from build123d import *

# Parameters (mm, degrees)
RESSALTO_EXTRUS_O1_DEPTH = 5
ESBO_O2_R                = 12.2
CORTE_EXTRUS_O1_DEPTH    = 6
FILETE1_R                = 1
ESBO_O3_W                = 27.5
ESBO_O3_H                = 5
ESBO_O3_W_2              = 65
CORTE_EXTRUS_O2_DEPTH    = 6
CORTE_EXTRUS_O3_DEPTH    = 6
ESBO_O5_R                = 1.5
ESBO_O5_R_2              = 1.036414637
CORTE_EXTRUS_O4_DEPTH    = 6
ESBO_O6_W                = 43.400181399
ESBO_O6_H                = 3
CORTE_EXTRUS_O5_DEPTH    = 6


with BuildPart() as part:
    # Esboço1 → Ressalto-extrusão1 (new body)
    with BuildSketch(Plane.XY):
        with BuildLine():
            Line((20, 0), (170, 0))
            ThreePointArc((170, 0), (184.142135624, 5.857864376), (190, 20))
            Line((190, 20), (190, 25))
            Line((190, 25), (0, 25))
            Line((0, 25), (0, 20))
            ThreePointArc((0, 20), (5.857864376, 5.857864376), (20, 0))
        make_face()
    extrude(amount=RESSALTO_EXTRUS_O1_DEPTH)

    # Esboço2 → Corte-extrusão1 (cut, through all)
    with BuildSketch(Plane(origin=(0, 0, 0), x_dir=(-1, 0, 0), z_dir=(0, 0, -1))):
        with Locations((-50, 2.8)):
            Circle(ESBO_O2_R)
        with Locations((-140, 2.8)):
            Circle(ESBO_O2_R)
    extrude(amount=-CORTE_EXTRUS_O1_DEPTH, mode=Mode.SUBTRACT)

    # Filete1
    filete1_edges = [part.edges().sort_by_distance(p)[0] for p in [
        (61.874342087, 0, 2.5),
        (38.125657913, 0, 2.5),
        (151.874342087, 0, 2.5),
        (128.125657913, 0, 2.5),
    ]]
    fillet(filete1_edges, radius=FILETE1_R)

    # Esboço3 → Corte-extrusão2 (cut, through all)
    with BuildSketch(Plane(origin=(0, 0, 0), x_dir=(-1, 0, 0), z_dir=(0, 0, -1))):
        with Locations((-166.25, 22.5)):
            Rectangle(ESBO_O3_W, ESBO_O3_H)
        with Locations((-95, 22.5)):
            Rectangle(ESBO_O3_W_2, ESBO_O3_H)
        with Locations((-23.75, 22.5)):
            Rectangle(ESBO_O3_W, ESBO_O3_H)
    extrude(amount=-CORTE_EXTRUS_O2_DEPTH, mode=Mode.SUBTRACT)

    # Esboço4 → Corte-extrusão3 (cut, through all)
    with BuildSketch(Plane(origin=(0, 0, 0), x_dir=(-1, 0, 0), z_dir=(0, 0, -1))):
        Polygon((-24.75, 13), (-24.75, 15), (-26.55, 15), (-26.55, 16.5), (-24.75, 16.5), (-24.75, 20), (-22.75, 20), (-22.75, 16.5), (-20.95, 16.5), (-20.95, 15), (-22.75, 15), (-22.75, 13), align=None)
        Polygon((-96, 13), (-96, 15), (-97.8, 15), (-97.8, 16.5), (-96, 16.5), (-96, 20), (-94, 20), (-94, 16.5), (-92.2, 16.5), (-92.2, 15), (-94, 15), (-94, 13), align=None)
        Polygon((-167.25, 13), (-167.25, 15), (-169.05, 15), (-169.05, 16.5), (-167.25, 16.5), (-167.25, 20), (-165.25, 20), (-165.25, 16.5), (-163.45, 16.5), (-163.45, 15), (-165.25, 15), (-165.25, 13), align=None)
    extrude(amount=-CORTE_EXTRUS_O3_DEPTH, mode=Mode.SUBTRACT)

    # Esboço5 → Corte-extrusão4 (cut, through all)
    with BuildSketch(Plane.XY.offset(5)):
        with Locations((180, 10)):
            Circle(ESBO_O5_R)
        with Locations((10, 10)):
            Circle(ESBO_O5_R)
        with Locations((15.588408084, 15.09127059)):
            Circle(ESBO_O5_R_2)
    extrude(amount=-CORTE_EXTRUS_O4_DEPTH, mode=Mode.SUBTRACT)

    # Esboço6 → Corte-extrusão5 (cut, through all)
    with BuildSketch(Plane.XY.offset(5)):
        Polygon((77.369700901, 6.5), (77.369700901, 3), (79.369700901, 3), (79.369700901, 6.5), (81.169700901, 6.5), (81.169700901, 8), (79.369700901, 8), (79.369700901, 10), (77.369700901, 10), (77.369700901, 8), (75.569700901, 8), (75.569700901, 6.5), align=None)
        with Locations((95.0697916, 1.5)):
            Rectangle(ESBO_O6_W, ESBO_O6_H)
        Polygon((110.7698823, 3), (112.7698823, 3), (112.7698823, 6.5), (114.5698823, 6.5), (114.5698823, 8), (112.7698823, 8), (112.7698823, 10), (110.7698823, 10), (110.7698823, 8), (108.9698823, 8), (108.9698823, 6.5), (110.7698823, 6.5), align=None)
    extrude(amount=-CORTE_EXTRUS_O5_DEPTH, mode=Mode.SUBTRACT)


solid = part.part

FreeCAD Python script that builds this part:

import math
import FreeCAD as App
import Part
import Sketcher


def edges_at(feature, points):
    """Names of the edges that pass closest to the given points."""
    edges = feature.Shape.Edges
    near = lambda p: min(range(len(edges)), key=lambda i: edges[i].distToShape(Part.Vertex(*p))[0])
    return sorted({f"Edge{near(p) + 1}" for p in points})


def add_polygon(sketch, points):
    """Adds a closed chain of lines whose ends are joined by coincident constraints."""
    first, n = sketch.GeometryCount, len(points)
    for a, b in zip(points, points[1:] + points[:1]):
        sketch.addGeometry(Part.LineSegment(App.Vector(*a, 0), App.Vector(*b, 0)), False)
    for i in range(n):
        sketch.addConstraint(Sketcher.Constraint("Coincident", first + i, 2, first + (i + 1) % n, 1))

doc = App.newDocument("Part")
body = doc.addObject("PartDesign::Body", "Body")

# Sketch on XY plane
sketch1 = doc.addObject("Sketcher::SketchObject", "Sketch")
body.addObject(sketch1)
sketch1.AttachmentSupport = (doc.XY_Plane, [""])
sketch1.MapMode = "FlatFace"
sketch1.addGeometry(Part.LineSegment(App.Vector(20, 0, 0), App.Vector(170, 0, 0)), False)
sketch1.addGeometry(Part.ArcOfCircle(Part.Circle(App.Vector(170, 20, 0), App.Vector(0, 0, 1), 20), math.radians(-90), math.radians(0)), False)
sketch1.addGeometry(Part.LineSegment(App.Vector(190, 20, 0), App.Vector(190, 25, 0)), False)
sketch1.addGeometry(Part.LineSegment(App.Vector(190, 25, 0), App.Vector(0, 25, 0)), False)
sketch1.addGeometry(Part.LineSegment(App.Vector(0, 25, 0), App.Vector(0, 20, 0)), False)
sketch1.addGeometry(Part.ArcOfCircle(Part.Circle(App.Vector(20, 20, 0), App.Vector(0, 0, 1), 20), math.radians(180), math.radians(270)), False)
sketch1.addConstraint(Sketcher.Constraint("Tangent", 0, 2, 1, 1))
sketch1.addConstraint(Sketcher.Constraint("Tangent", 1, 2, 2, 1))
sketch1.addConstraint(Sketcher.Constraint("Coincident", 2, 2, 3, 1))
sketch1.addConstraint(Sketcher.Constraint("Coincident", 3, 2, 4, 1))
sketch1.addConstraint(Sketcher.Constraint("Tangent", 4, 2, 5, 1))
sketch1.addConstraint(Sketcher.Constraint("Tangent", 5, 2, 0, 1))
sketch1.addConstraint(Sketcher.Constraint("Horizontal", 0))
sketch1.addConstraint(Sketcher.Constraint("Vertical", 2))
sketch1.addConstraint(Sketcher.Constraint("Horizontal", 3))
sketch1.addConstraint(Sketcher.Constraint("Vertical", 4))
sketch1.addConstraint(Sketcher.Constraint("Equal", 1, 5))
sketch1.addConstraint(Sketcher.Constraint("PointOnObject", 0, 2, -1))
sketch1.addConstraint(Sketcher.Constraint("PointOnObject", 3, 2, -2))
sketch1.addConstraint(Sketcher.Constraint("Radius", 1, 20.0))
sketch1.addConstraint(Sketcher.Constraint("DistanceX", 0, 1, 0, 2, 150.0))
sketch1.addConstraint(Sketcher.Constraint("DistanceY", 2, 1, 2, 2, 5.0))
pad1 = doc.addObject("PartDesign::Pad", "Pad")
body.addObject(pad1)
pad1.Profile = sketch1
pad1.Length = 5

# Sketch on XY plane
sketch2 = doc.addObject("Sketcher::SketchObject", "Sketch001")
body.addObject(sketch2)
sketch2.AttachmentSupport = (doc.XY_Plane, [""])
sketch2.MapMode = "FlatFace"
sketch2.addGeometry(Part.Circle(App.Vector(50, 2.8, 0), App.Vector(0, 0, 1), 12.2), False)
sketch2.addGeometry(Part.Circle(App.Vector(140, 2.8, 0), App.Vector(0, 0, 1), 12.2), False)
sketch2.addConstraint(Sketcher.Constraint("Equal", 0, 1))
sketch2.addConstraint(Sketcher.Constraint("Horizontal", 0, 3, 1, 3))
sketch2.addConstraint(Sketcher.Constraint("Diameter", 0, 24.4))
sketch2.addConstraint(Sketcher.Constraint("DistanceX", -1, 1, 0, 3, 50.0))
sketch2.addConstraint(Sketcher.Constraint("DistanceX", -1, 1, 1, 3, 140.0))
sketch2.addConstraint(Sketcher.Constraint("DistanceY", -1, 1, 0, 3, 2.8))
pocket1 = doc.addObject("PartDesign::Pocket", "Pocket")
body.addObject(pocket1)
pocket1.Profile = sketch2
pocket1.Type = "ThroughAll"
pocket1.Reversed = True
doc.recompute()

fillet = doc.addObject("PartDesign::Fillet", "Fillet")
body.addObject(fillet)
fillet.Base = (pocket1, edges_at(pocket1, [
    (61.874, 0, 2.5),
    (38.126, 0, 2.5),
    (151.874, 0, 2.5),
    (128.126, 0, 2.5),
]))
fillet.Radius = 1

# Sketch on XY plane
sketch3 = doc.addObject("Sketcher::SketchObject", "Sketch002")
body.addObject(sketch3)
sketch3.AttachmentSupport = (doc.XY_Plane, [""])
sketch3.MapMode = "FlatFace"
add_polygon(sketch3, [(180, 25), (180, 20), (152.5, 20), (152.5, 25)])  # lines 0-3
add_polygon(sketch3, [(127.5, 25), (127.5, 20), (62.5, 20), (62.5, 25)])  # lines 4-7
add_polygon(sketch3, [(37.5, 25), (37.5, 20), (10, 20), (10, 25)])  # lines 8-11
sketch3.addConstraint(Sketcher.Constraint("Vertical", 0))
sketch3.addConstraint(Sketcher.Constraint("Horizontal", 1))
sketch3.addConstraint(Sketcher.Constraint("Vertical", 2))
sketch3.addConstraint(Sketcher.Constraint("Horizontal", 3))
sketch3.addConstraint(Sketcher.Constraint("Vertical", 4))
sketch3.addConstraint(Sketcher.Constraint("Horizontal", 5))
sketch3.addConstraint(Sketcher.Constraint("Vertical", 6))
sketch3.addConstraint(Sketcher.Constraint("Horizontal", 7))
sketch3.addConstraint(Sketcher.Constraint("Vertical", 8))
sketch3.addConstraint(Sketcher.Constraint("Horizontal", 9))
sketch3.addConstraint(Sketcher.Constraint("Vertical", 10))
sketch3.addConstraint(Sketcher.Constraint("Horizontal", 11))
sketch3.addConstraint(Sketcher.Constraint("Horizontal", 1, 2, 4, 2))
sketch3.addConstraint(Sketcher.Constraint("Horizontal", 3, 2, 6, 2))
sketch3.addConstraint(Sketcher.Constraint("Horizontal", 5, 2, 8, 2))
sketch3.addConstraint(Sketcher.Constraint("Horizontal", 7, 2, 10, 2))
sketch3.addConstraint(Sketcher.Constraint("Equal", 3, 9))
sketch3.addConstraint(Sketcher.Constraint("DistanceX", 5, 2, 5, 1, 65.0))
sketch3.addConstraint(Sketcher.Constraint("DistanceY", 0, 2, 0, 1, 5.0))
sketch3.addConstraint(Sketcher.Constraint("DistanceX", 1, 2, 1, 1, 27.5))
sketch3.addConstraint(Sketcher.Constraint("DistanceX", -1, 1, 0, 2, 180.0))
sketch3.addConstraint(Sketcher.Constraint("DistanceY", -1, 1, 0, 2, 20.0))
sketch3.addConstraint(Sketcher.Constraint("DistanceX", -1, 1, 9, 2, 10.0))
sketch3.addConstraint(Sketcher.Constraint("DistanceX", 4, 2, 1, 2, 25.0))
pocket2 = doc.addObject("PartDesign::Pocket", "Pocket001")
body.addObject(pocket2)
pocket2.Profile = sketch3
pocket2.Type = "ThroughAll"
pocket2.Reversed = True

# Sketch on XY plane
sketch4 = doc.addObject("Sketcher::SketchObject", "Sketch003")
body.addObject(sketch4)
sketch4.AttachmentSupport = (doc.XY_Plane, [""])
sketch4.MapMode = "FlatFace"
add_polygon(sketch4, [(24.75, 15), (24.75, 13), (22.75, 13), (22.75, 15), (20.95, 15), (20.95, 16.5), (22.75, 16.5), (22.75, 20), (24.75, 20), (24.75, 16.5), (26.55, 16.5), (26.55, 15)])  # lines 0-11
add_polygon(sketch4, [(96, 15), (96, 13), (94, 13), (94, 15), (92.2, 15), (92.2, 16.5), (94, 16.5), (94, 20), (96, 20), (96, 16.5), (97.8, 16.5), (97.8, 15)])  # lines 12-23
add_polygon(sketch4, [(167.25, 15), (167.25, 13), (165.25, 13), (165.25, 15), (163.45, 15), (163.45, 16.5), (165.25, 16.5), (165.25, 20), (167.25, 20), (167.25, 16.5), (169.05, 16.5), (169.05, 15)])  # lines 24-35
sketch4.addConstraint(Sketcher.Constraint("Vertical", 0))
sketch4.addConstraint(Sketcher.Constraint("Horizontal", 1))
sketch4.addConstraint(Sketcher.Constraint("Vertical", 2))
sketch4.addConstraint(Sketcher.Constraint("Horizontal", 3))
sketch4.addConstraint(Sketcher.Constraint("Vertical", 4))
sketch4.addConstraint(Sketcher.Constraint("Horizontal", 5))
sketch4.addConstraint(Sketcher.Constraint("Vertical", 6))
sketch4.addConstraint(Sketcher.Constraint("Horizontal", 7))
sketch4.addConstraint(Sketcher.Constraint("Vertical", 8))
sketch4.addConstraint(Sketcher.Constraint("Horizontal", 9))
sketch4.addConstraint(Sketcher.Constraint("Vertical", 10))
sketch4.addConstraint(Sketcher.Constraint("Horizontal", 11))
sketch4.addConstraint(Sketcher.Constraint("Vertical", 12))
sketch4.addConstraint(Sketcher.Constraint("Horizontal", 13))
sketch4.addConstraint(Sketcher.Constraint("Vertical", 14))
sketch4.addConstraint(Sketcher.Constraint("Horizontal", 15))
sketch4.addConstraint(Sketcher.Constraint("Vertical", 16))
sketch4.addConstraint(Sketcher.Constraint("Horizontal", 17))
sketch4.addConstraint(Sketcher.Constraint("Vertical", 18))
sketch4.addConstraint(Sketcher.Constraint("Horizontal", 19))
sketch4.addConstraint(Sketcher.Constraint("Vertical", 20))
sketch4.addConstraint(Sketcher.Constraint("Horizontal", 21))
sketch4.addConstraint(Sketcher.Constraint("Vertical", 22))
sketch4.addConstraint(Sketcher.Constraint("Horizontal", 23))
sketch4.addConstraint(Sketcher.Constraint("Vertical", 24))
sketch4.addConstraint(Sketcher.Constraint("Horizontal", 25))
sketch4.addConstraint(Sketcher.Constraint("Vertical", 26))
sketch4.addConstraint(Sketcher.Constraint("Horizontal", 27))
sketch4.addConstraint(Sketcher.Constraint("Vertical", 28))
sketch4.addConstraint(Sketcher.Constraint("Horizontal", 29))
sketch4.addConstraint(Sketcher.Constraint("Vertical", 30))
sketch4.addConstraint(Sketcher.Constraint("Horizontal", 31))
sketch4.addConstraint(Sketcher.Constraint("Vertical", 32))
sketch4.addConstraint(Sketcher.Constraint("Horizontal", 33))
sketch4.addConstraint(Sketcher.Constraint("Vertical", 34))
sketch4.addConstraint(Sketcher.Constraint("Horizontal", 35))
sketch4.addConstraint(Sketcher.Constraint("Horizontal", 5, 2, 8, 2))
sketch4.addConstraint(Sketcher.Constraint("Horizontal", 3, 2, 10, 2))
sketch4.addConstraint(Sketcher.Constraint("Horizontal", 1, 2, 12, 2))
sketch4.addConstraint(Sketcher.Constraint("Horizontal", 11, 2, 14, 2))
sketch4.addConstraint(Sketcher.Constraint("Horizontal", 9, 2, 16, 2))
sketch4.addConstraint(Sketcher.Constraint("Horizontal", 7, 2, 18, 2))
sketch4.addConstraint(Sketcher.Constraint("Horizontal", 17, 2, 20, 2))
sketch4.addConstraint(Sketcher.Constraint("Horizontal", 15, 2, 22, 2))
sketch4.addConstraint(Sketcher.Constraint("Horizontal", 13, 2, 24, 2))
sketch4.addConstraint(Sketcher.Constraint("Horizontal", 23, 2, 26, 2))
sketch4.addConstraint(Sketcher.Constraint("Horizontal", 21, 2, 28, 2))
sketch4.addConstraint(Sketcher.Constraint("Horizontal", 19, 2, 30, 2))
sketch4.addConstraint(Sketcher.Constraint("Horizontal", 29, 2, 32, 2))
sketch4.addConstraint(Sketcher.Constraint("Horizontal", 27, 2, 34, 2))
sketch4.addConstraint(Sketcher.Constraint("Vertical", 2, 2, 5, 2))
sketch4.addConstraint(Sketcher.Constraint("Vertical", 0, 2, 7, 2))
sketch4.addConstraint(Sketcher.Constraint("Vertical", 14, 2, 17, 2))
sketch4.addConstraint(Sketcher.Constraint("Vertical", 12, 2, 19, 2))
sketch4.addConstraint(Sketcher.Constraint("Vertical", 26, 2, 29, 2))
sketch4.addConstraint(Sketcher.Constraint("Vertical", 24, 2, 31, 2))
sketch4.addConstraint(Sketcher.Constraint("Equal", 5, 9))
sketch4.addConstraint(Sketcher.Constraint("Equal", 7, 13))
sketch4.addConstraint(Sketcher.Constraint("Equal", 11, 15))
sketch4.addConstraint(Sketcher.Constraint("Equal", 17, 21))
sketch4.addConstraint(Sketcher.Constraint("Equal", 19, 25))
sketch4.addConstraint(Sketcher.Constraint("Equal", 23, 27))
sketch4.addConstraint(Sketcher.Constraint("Equal", 29, 33))
sketch4.addConstraint(Sketcher.Constraint("Equal", 31, 0))
sketch4.addConstraint(Sketcher.Constraint("DistanceX", 1, 2, 1, 1, 2.0))
sketch4.addConstraint(Sketcher.Constraint("DistanceX", 3, 2, 3, 1, 1.8))
sketch4.addConstraint(Sketcher.Constraint("DistanceY", 4, 1, 4, 2, 1.5))
sketch4.addConstraint(Sketcher.Constraint("DistanceY", 6, 1, 6, 2, 3.5))
sketch4.addConstraint(Sketcher.Constraint("DistanceY", -1, 1, 0, 2, 13.0))
sketch4.addConstraint(Sketcher.Constraint("DistanceX", -1, 1, 12, 2, 96.0))
sketch4.addConstraint(Sketcher.Constraint("DistanceX", -1, 1, 0, 2, 24.75))
sketch4.addConstraint(Sketcher.Constraint("DistanceX", -1, 1, 24, 2, 167.25))
pocket3 = doc.addObject("PartDesign::Pocket", "Pocket002")
body.addObject(pocket3)
pocket3.Profile = sketch4
pocket3.Type = "ThroughAll"
pocket3.Reversed = True

# Sketch on XY plane
sketch5 = doc.addObject("Sketcher::SketchObject", "Sketch004")
body.addObject(sketch5)
sketch5.AttachmentSupport = (doc.XY_Plane, [""])
sketch5.MapMode = "FlatFace"
sketch5.AttachmentOffset = App.Placement(App.Vector(0, 0, 5), App.Rotation())
sketch5.addGeometry(Part.Circle(App.Vector(180, 10, 0), App.Vector(0, 0, 1), 1.5), False)
sketch5.addGeometry(Part.Circle(App.Vector(10, 10, 0), App.Vector(0, 0, 1), 1.5), False)
sketch5.addGeometry(Part.Circle(App.Vector(15.588408, 15.091271, 0), App.Vector(0, 0, 1), 1.036415), False)
sketch5.addConstraint(Sketcher.Constraint("Equal", 0, 1))
sketch5.addConstraint(Sketcher.Constraint("Horizontal", 0, 3, 1, 3))
sketch5.addConstraint(Sketcher.Constraint("Diameter", 0, 3.0))
sketch5.addConstraint(Sketcher.Constraint("DistanceX", -1, 1, 0, 3, 180.0))
sketch5.addConstraint(Sketcher.Constraint("DistanceY", -1, 1, 0, 3, 10.0))
sketch5.addConstraint(Sketcher.Constraint("DistanceX", -1, 1, 1, 3, 10.0))
sketch5.addConstraint(Sketcher.Constraint("Diameter", 2, 2.072829))
sketch5.addConstraint(Sketcher.Constraint("DistanceX", -1, 1, 2, 3, 15.588408))
sketch5.addConstraint(Sketcher.Constraint("DistanceY", -1, 1, 2, 3, 15.091271))
pocket4 = doc.addObject("PartDesign::Pocket", "Pocket003")
body.addObject(pocket4)
pocket4.Profile = sketch5
pocket4.Type = "ThroughAll"

# Sketch on XY plane
sketch6 = doc.addObject("Sketcher::SketchObject", "Sketch005")
body.addObject(sketch6)
sketch6.AttachmentSupport = (doc.XY_Plane, [""])
sketch6.MapMode = "FlatFace"
sketch6.AttachmentOffset = App.Placement(App.Vector(0, 0, 5), App.Rotation())
add_polygon(sketch6, [(77.369701, 6.5), (77.369701, 3), (73.369701, 3), (73.369701, 0), (116.769882, 0), (116.769882, 3), (112.769882, 3), (112.769882, 6.5), (114.569882, 6.5), (114.569882, 8), (112.769882, 8), (112.769882, 10), (110.769882, 10), (110.769882, 8), (108.969882, 8), (108.969882, 6.5), (110.769882, 6.5), (110.769882, 3), (79.369701, 3), (79.369701, 6.5), (81.169701, 6.5), (81.169701, 8), (79.369701, 8), (79.369701, 10), (77.369701, 10), (77.369701, 8), (75.569701, 8), (75.569701, 6.5)])  # lines 0-27
sketch6.addConstraint(Sketcher.Constraint("Vertical", 0))
sketch6.addConstraint(Sketcher.Constraint("Horizontal", 1))
sketch6.addConstraint(Sketcher.Constraint("Vertical", 2))
sketch6.addConstraint(Sketcher.Constraint("Horizontal", 3))
sketch6.addConstraint(Sketcher.Constraint("Vertical", 4))
sketch6.addConstraint(Sketcher.Constraint("Horizontal", 5))
sketch6.addConstraint(Sketcher.Constraint("Vertical", 6))
sketch6.addConstraint(Sketcher.Constraint("Horizontal", 7))
sketch6.addConstraint(Sketcher.Constraint("Vertical", 8))
sketch6.addConstraint(Sketcher.Constraint("Horizontal", 9))
sketch6.addConstraint(Sketcher.Constraint("Vertical", 10))
sketch6.addConstraint(Sketcher.Constraint("Horizontal", 11))
sketch6.addConstraint(Sketcher.Constraint("Vertical", 12))
sketch6.addConstraint(Sketcher.Constraint("Horizontal", 13))
sketch6.addConstraint(Sketcher.Constraint("Vertical", 14))
sketch6.addConstraint(Sketcher.Constraint("Horizontal", 15))
sketch6.addConstraint(Sketcher.Constraint("Vertical", 16))
sketch6.addConstraint(Sketcher.Constraint("Horizontal", 17))
sketch6.addConstraint(Sketcher.Constraint("Vertical", 18))
sketch6.addConstraint(Sketcher.Constraint("Horizontal", 19))
sketch6.addConstraint(Sketcher.Constraint("Vertical", 20))
sketch6.addConstraint(Sketcher.Constraint("Horizontal", 21))
sketch6.addConstraint(Sketcher.Constraint("Vertical", 22))
sketch6.addConstraint(Sketcher.Constraint("Horizontal", 23))
sketch6.addConstraint(Sketcher.Constraint("Vertical", 24))
sketch6.addConstraint(Sketcher.Constraint("Horizontal", 25))
sketch6.addConstraint(Sketcher.Constraint("Vertical", 26))
sketch6.addConstraint(Sketcher.Constraint("Horizontal", 27))
sketch6.addConstraint(Sketcher.Constraint("PointOnObject", 2, 2, -1))
sketch6.addConstraint(Sketcher.Constraint("Horizontal", 1, 2, 4, 2))
sketch6.addConstraint(Sketcher.Constraint("Horizontal", 9, 2, 12, 2))
sketch6.addConstraint(Sketcher.Constraint("Horizontal", 7, 2, 14, 2))
sketch6.addConstraint(Sketcher.Constraint("Horizontal", 5, 2, 16, 2))
sketch6.addConstraint(Sketcher.Constraint("Horizontal", 15, 2, 18, 2))
sketch6.addConstraint(Sketcher.Constraint("Horizontal", 13, 2, 20, 2))
sketch6.addConstraint(Sketcher.Constraint("Horizontal", 11, 2, 22, 2))
sketch6.addConstraint(Sketcher.Constraint("Horizontal", 21, 2, 24, 2))
sketch6.addConstraint(Sketcher.Constraint("Horizontal", 19, 2, 26, 2))
sketch6.addConstraint(Sketcher.Constraint("Vertical", 6, 2, 9, 2))
sketch6.addConstraint(Sketcher.Constraint("Vertical", 12, 2, 15, 2))
sketch6.addConstraint(Sketcher.Constraint("Vertical", 18, 2, 21, 2))
sketch6.addConstraint(Sketcher.Constraint("Vertical", 0, 2, 23, 2))
sketch6.addConstraint(Sketcher.Constraint("Equal", 1, 5))
sketch6.addConstraint(Sketcher.Constraint("Equal", 9, 13))
sketch6.addConstraint(Sketcher.Constraint("Equal", 15, 19))
sketch6.addConstraint(Sketcher.Constraint("Equal", 11, 23))
sketch6.addConstraint(Sketcher.Constraint("Equal", 21, 25))
sketch6.addConstraint(Sketcher.Constraint("Equal", 23, 10))
sketch6.addConstraint(Sketcher.Constraint("DistanceX", 1, 2, 1, 1, 4.0))
sketch6.addConstraint(Sketcher.Constraint("DistanceX", 11, 2, 11, 1, 2.0))
sketch6.addConstraint(Sketcher.Constraint("DistanceY", 2, 2, 2, 1, 3.0))
sketch6.addConstraint(Sketcher.Constraint("DistanceX", 7, 1, 7, 2, 1.8))
sketch6.addConstraint(Sketcher.Constraint("DistanceY", 0, 2, 0, 1, 3.5))
sketch6.addConstraint(Sketcher.Constraint("DistanceY", 8, 1, 8, 2, 1.5))
sketch6.addConstraint(Sketcher.Constraint("DistanceX", 3, 1, 3, 2, 43.400181))
sketch6.addConstraint(Sketcher.Constraint("DistanceX", -1, 1, 0, 2, 77.369701))
pocket5 = doc.addObject("PartDesign::Pocket", "Pocket004")
body.addObject(pocket5)
pocket5.Profile = sketch6
pocket5.Type = "ThroughAll"

doc.recompute()
